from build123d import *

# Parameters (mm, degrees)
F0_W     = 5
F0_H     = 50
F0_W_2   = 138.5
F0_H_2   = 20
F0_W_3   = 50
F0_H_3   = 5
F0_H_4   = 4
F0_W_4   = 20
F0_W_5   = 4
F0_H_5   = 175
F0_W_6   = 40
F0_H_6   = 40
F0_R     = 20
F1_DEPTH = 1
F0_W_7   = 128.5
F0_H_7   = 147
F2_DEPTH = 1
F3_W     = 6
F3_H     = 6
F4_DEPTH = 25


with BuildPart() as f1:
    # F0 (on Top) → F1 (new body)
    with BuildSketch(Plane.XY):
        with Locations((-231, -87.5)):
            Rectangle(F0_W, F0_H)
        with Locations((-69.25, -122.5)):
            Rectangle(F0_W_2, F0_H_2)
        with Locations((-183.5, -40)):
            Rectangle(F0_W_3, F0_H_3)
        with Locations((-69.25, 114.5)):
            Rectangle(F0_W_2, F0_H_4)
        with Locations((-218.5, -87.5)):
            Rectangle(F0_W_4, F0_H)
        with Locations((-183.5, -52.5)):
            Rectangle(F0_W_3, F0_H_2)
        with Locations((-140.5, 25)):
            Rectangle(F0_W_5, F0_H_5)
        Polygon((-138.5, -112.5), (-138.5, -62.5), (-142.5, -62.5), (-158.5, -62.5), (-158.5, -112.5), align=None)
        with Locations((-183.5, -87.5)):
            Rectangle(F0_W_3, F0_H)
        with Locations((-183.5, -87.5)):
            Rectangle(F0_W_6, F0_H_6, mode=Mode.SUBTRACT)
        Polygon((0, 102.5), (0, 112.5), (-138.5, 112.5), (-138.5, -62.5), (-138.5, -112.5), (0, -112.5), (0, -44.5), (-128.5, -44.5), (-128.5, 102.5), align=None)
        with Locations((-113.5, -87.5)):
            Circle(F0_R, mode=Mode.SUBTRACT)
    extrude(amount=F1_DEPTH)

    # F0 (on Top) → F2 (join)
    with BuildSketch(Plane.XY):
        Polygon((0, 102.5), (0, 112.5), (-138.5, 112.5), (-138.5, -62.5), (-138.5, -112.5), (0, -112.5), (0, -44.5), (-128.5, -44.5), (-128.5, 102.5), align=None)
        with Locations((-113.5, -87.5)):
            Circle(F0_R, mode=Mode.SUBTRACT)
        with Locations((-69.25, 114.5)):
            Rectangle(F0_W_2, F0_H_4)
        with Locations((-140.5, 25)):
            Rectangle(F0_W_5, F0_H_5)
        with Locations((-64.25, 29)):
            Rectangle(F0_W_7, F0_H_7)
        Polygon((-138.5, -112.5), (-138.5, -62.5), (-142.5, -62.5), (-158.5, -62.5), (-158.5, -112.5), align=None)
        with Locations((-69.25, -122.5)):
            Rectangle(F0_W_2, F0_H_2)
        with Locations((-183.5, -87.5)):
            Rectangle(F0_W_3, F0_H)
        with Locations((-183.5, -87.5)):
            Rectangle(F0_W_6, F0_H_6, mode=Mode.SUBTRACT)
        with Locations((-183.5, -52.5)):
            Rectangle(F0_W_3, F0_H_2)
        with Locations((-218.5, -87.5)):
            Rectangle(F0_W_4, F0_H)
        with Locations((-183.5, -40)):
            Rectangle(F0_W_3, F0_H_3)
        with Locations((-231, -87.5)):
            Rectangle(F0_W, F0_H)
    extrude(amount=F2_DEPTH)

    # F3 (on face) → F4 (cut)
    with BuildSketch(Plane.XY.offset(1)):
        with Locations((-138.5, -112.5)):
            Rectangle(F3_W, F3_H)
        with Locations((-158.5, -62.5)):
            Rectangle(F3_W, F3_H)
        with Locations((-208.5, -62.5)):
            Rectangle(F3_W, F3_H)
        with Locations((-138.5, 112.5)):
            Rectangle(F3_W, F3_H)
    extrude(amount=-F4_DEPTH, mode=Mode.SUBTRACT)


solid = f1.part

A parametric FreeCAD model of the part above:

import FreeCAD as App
import Part
import Sketcher
from FreeCAD import Vector

doc = App.newDocument("Part")
body = doc.addObject("PartDesign::Body", "Body")

sketch1 = doc.addObject("Sketcher::SketchObject", "Sketch")
body.addObject(sketch1)
sketch1.AttachmentSupport = (doc.XY_Plane, [""])
sketch1.MapMode = "FlatFace"
sketch1.addGeometry([
    Part.LineSegment(Vector(-233.5, -62.5, 0), Vector(-233.5, -112.5, 0)),
    Part.LineSegment(Vector(-233.5, -112.5, 0), Vector(-138.5, -112.5, 0)),
    Part.LineSegment(Vector(-138.5, -112.5, 0), Vector(-138.5, -132.5, 0)),
    Part.LineSegment(Vector(-138.5, -132.5, 0), Vector(0, -132.5, 0)),
    Part.LineSegment(Vector(0, -132.5, 0), Vector(0, -44.5, 0)),
    Part.LineSegment(Vector(0, -44.5, 0), Vector(-128.5, -44.5, 0)),
    Part.LineSegment(Vector(-128.5, -44.5, 0), Vector(-128.5, 102.5, 0)),
    Part.LineSegment(Vector(-128.5, 102.5, 0), Vector(0, 102.5, 0)),
    Part.LineSegment(Vector(0, 102.5, 0), Vector(0, 116.5, 0)),
    Part.LineSegment(Vector(0, 116.5, 0), Vector(-138.5, 116.5, 0)),
    Part.LineSegment(Vector(-138.5, 116.5, 0), Vector(-138.5, 112.5, 0)),
    Part.LineSegment(Vector(-138.5, 112.5, 0), Vector(-142.5, 112.5, 0)),
    Part.LineSegment(Vector(-142.5, 112.5, 0), Vector(-142.5, -62.5, 0)),
    Part.LineSegment(Vector(-142.5, -62.5, 0), Vector(-158.5, -62.5, 0)),
    Part.LineSegment(Vector(-158.5, -62.5, 0), Vector(-158.5, -37.5, 0)),
    Part.LineSegment(Vector(-158.5, -37.5, 0), Vector(-208.5, -37.5, 0)),
    Part.LineSegment(Vector(-208.5, -37.5, 0), Vector(-208.5, -62.5, 0)),
    Part.LineSegment(Vector(-208.5, -62.5, 0), Vector(-233.5, -62.5, 0)),
    Part.LineSegment(Vector(-163.5, -107.5, 0), Vector(-203.5, -107.5, 0)),
    Part.LineSegment(Vector(-203.5, -107.5, 0), Vector(-203.5, -67.5, 0)),
    Part.LineSegment(Vector(-203.5, -67.5, 0), Vector(-163.5, -67.5, 0)),
    Part.LineSegment(Vector(-163.5, -67.5, 0), Vector(-163.5, -107.5, 0)),
    Part.Circle(Vector(-113.5, -87.5, 0), Vector(0, 0, 1), 20),
], False)
sketch1.addConstraint([
    Sketcher.Constraint("Coincident", 0, 2, 1, 1),
    Sketcher.Constraint("Coincident", 1, 2, 2, 1),
    Sketcher.Constraint("Coincident", 2, 2, 3, 1),
    Sketcher.Constraint("Coincident", 3, 2, 4, 1),
    Sketcher.Constraint("Coincident", 4, 2, 5, 1),
    Sketcher.Constraint("Coincident", 5, 2, 6, 1),
    Sketcher.Constraint("Coincident", 6, 2, 7, 1),
    Sketcher.Constraint("Coincident", 7, 2, 8, 1),
    Sketcher.Constraint("Coincident", 8, 2, 9, 1),
    Sketcher.Constraint("Coincident", 9, 2, 10, 1),
    Sketcher.Constraint("Coincident", 10, 2, 11, 1),
    Sketcher.Constraint("Coincident", 11, 2, 12, 1),
    Sketcher.Constraint("Coincident", 12, 2, 13, 1),
    Sketcher.Constraint("Coincident", 13, 2, 14, 1),
    Sketcher.Constraint("Coincident", 14, 2, 15, 1),
    Sketcher.Constraint("Coincident", 15, 2, 16, 1),
    Sketcher.Constraint("Coincident", 16, 2, 17, 1),
    Sketcher.Constraint("Coincident", 17, 2, 0, 1),
    Sketcher.Constraint("Coincident", 18, 2, 19, 1),
    Sketcher.Constraint("Coincident", 19, 2, 20, 1),
    Sketcher.Constraint("Coincident", 20, 2, 21, 1),
    Sketcher.Constraint("Coincident", 21, 2, 18, 1),
    Sketcher.Constraint("Vertical", 0),
    Sketcher.Constraint("Horizontal", 1),
    Sketcher.Constraint("Vertical", 2),
    Sketcher.Constraint("Horizontal", 3),
    Sketcher.Constraint("Vertical", 4),
    Sketcher.Constraint("Horizontal", 5),
    Sketcher.Constraint("Vertical", 6),
    Sketcher.Constraint("Horizontal", 7),
    Sketcher.Constraint("Vertical", 8),
    Sketcher.Constraint("Horizontal", 9),
    Sketcher.Constraint("Vertical", 10),
    Sketcher.Constraint("Horizontal", 11),
    Sketcher.Constraint("Vertical", 12),
    Sketcher.Constraint("Horizontal", 13),
    Sketcher.Constraint("Vertical", 14),
    Sketcher.Constraint("Horizontal", 15),
    Sketcher.Constraint("Vertical", 16),
    Sketcher.Constraint("Horizontal", 17),
    Sketcher.Constraint("Horizontal", 18),
    Sketcher.Constraint("Vertical", 19),
    Sketcher.Constraint("Horizontal", 20),
    Sketcher.Constraint("Vertical", 21),
    Sketcher.Constraint("Symmetric", 1, 2, 10, 2, -1),
    Sketcher.Constraint("PointOnObject", 3, 2, -2),
    Sketcher.Constraint("PointOnObject", 7, 2, -2),
    Sketcher.Constraint("Horizontal", 13, 2, 16, 2),
    Sketcher.Constraint("Equal", 15, 0),
    Sketcher.Constraint("Equal", 11, 10),
    Sketcher.Constraint("Equal", 17, 14),
    Sketcher.Constraint("Equal", 20, 19),
    Sketcher.Constraint("Diameter", 22, 40.0),
    Sketcher.Constraint("DistanceX", 1, 1, 1, 2, 95.0),
    Sketcher.Constraint("DistanceX", 11, 2, 11, 1, 4.0),
    Sketcher.Constraint("DistanceX", 13, 2, 13, 1, 16.0),
    Sketcher.Constraint("DistanceX", 15, 2, 15, 1, 50.0),
    Sketcher.Constraint("DistanceX", 18, 2, 18, 1, 40.0),
    Sketcher.Constraint("DistanceY", 2, 2, 2, 1, 20.0),
    Sketcher.Constraint("DistanceY", 4, 1, 4, 2, 88.0),
    Sketcher.Constraint("DistanceY", 6, 1, 6, 2, 147.0),
    Sketcher.Constraint("DistanceY", 8, 1, 8, 2, 14.0),
    Sketcher.Constraint("DistanceX", 3, 1, 3, 2, 138.5),
    Sketcher.Constraint("DistanceX", 5, 2, 5, 1, 128.5),
    Sketcher.Constraint("DistanceX", 0, 2, 22, 3, 120.0),
    Sketcher.Constraint("DistanceY", 0, 2, 22, 3, 25.0),
    Sketcher.Constraint("DistanceX", 0, 2, 18, 2, 30.0),
    Sketcher.Constraint("DistanceY", 0, 2, 18, 2, 5.0),
])
pad1 = doc.addObject("PartDesign::Pad", "Pad")
body.addObject(pad1)
pad1.Profile = sketch1
pad1.Length = 1

sketch2 = doc.addObject("Sketcher::SketchObject", "Sketch001")
body.addObject(sketch2)
sketch2.AttachmentSupport = (doc.XY_Plane, [""])
sketch2.MapMode = "FlatFace"
sketch2.addGeometry([
    Part.LineSegment(Vector(0, 116.5, 0), Vector(-138.5, 116.5, 0)),
    Part.LineSegment(Vector(-138.5, 116.5, 0), Vector(-138.5, 112.5, 0)),
    Part.LineSegment(Vector(-138.5, 112.5, 0), Vector(-142.5, 112.5, 0)),
    Part.LineSegment(Vector(-142.5, 112.5, 0), Vector(-142.5, -62.5, 0)),
    Part.LineSegment(Vector(-142.5, -62.5, 0), Vector(-158.5, -62.5, 0)),
    Part.LineSegment(Vector(-158.5, -62.5, 0), Vector(-158.5, -37.5, 0)),
    Part.LineSegment(Vector(-158.5, -37.5, 0), Vector(-208.5, -37.5, 0)),
    Part.LineSegment(Vector(-208.5, -37.5, 0), Vector(-208.5, -62.5, 0)),
    Part.LineSegment(Vector(-208.5, -62.5, 0), Vector(-233.5, -62.5, 0)),
    Part.LineSegment(Vector(-233.5, -62.5, 0), Vector(-233.5, -112.5, 0)),
    Part.LineSegment(Vector(-233.5, -112.5, 0), Vector(-138.5, -112.5, 0)),
    Part.LineSegment(Vector(-138.5, -112.5, 0), Vector(-138.5, -132.5, 0)),
    Part.LineSegment(Vector(-138.5, -132.5, 0), Vector(0, -132.5, 0)),
    Part.LineSegment(Vector(0, -132.5, 0), Vector(0, 116.5, 0)),
    Part.LineSegment(Vector(-163.5, -107.5, 0), Vector(-203.5, -107.5, 0)),
    Part.LineSegment(Vector(-203.5, -107.5, 0), Vector(-203.5, -67.5, 0)),
    Part.LineSegment(Vector(-203.5, -67.5, 0), Vector(-163.5, -67.5, 0)),
    Part.LineSegment(Vector(-163.5, -67.5, 0), Vector(-163.5, -107.5, 0)),
    Part.Circle(Vector(-113.5, -87.5, 0), Vector(0, 0, 1), 20),
], False)
sketch2.addConstraint([
    Sketcher.Constraint("Coincident", 0, 2, 1, 1),
    Sketcher.Constraint("Coincident", 1, 2, 2, 1),
    Sketcher.Constraint("Coincident", 2, 2, 3, 1),
    Sketcher.Constraint("Coincident", 3, 2, 4, 1),
    Sketcher.Constraint("Coincident", 4, 2, 5, 1),
    Sketcher.Constraint("Coincident", 5, 2, 6, 1),
    Sketcher.Constraint("Coincident", 6, 2, 7, 1),
    Sketcher.Constraint("Coincident", 7, 2, 8, 1),
    Sketcher.Constraint("Coincident", 8, 2, 9, 1),
    Sketcher.Constraint("Coincident", 9, 2, 10, 1),
    Sketcher.Constraint("Coincident", 10, 2, 11, 1),
    Sketcher.Constraint("Coincident", 11, 2, 12, 1),
    Sketcher.Constraint("Coincident", 12, 2, 13, 1),
    Sketcher.Constraint("Coincident", 13, 2, 0, 1),
    Sketcher.Constraint("Coincident", 14, 2, 15, 1),
    Sketcher.Constraint("Coincident", 15, 2, 16, 1),
    Sketcher.Constraint("Coincident", 16, 2, 17, 1),
    Sketcher.Constraint("Coincident", 17, 2, 14, 1),
    Sketcher.Constraint("Horizontal", 0),
    Sketcher.Constraint("Vertical", 1),
    Sketcher.Constraint("Horizontal", 2),
    Sketcher.Constraint("Vertical", 3),
    Sketcher.Constraint("Horizontal", 4),
    Sketcher.Constraint("Vertical", 5),
    Sketcher.Constraint("Horizontal", 6),
    Sketcher.Constraint("Vertical", 7),
    Sketcher.Constraint("Horizontal", 8),
    Sketcher.Constraint("Vertical", 9),
    Sketcher.Constraint("Horizontal", 10),
    Sketcher.Constraint("Vertical", 11),
    Sketcher.Constraint("Horizontal", 12),
    Sketcher.Constraint("Vertical", 13),
    Sketcher.Constraint("Horizontal", 14),
    Sketcher.Constraint("Vertical", 15),
    Sketcher.Constraint("Horizontal", 16),
    Sketcher.Constraint("Vertical", 17),
    Sketcher.Constraint("Symmetric", 1, 2, 10, 2, -1),
    Sketcher.Constraint("PointOnObject", 12, 2, -2),
    Sketcher.Constraint("Horizontal", 4, 2, 7, 2),
    Sketcher.Constraint("Equal", 2, 1),
    Sketcher.Constraint("Equal", 8, 5),
    Sketcher.Constraint("Equal", 6, 9),
    Sketcher.Constraint("Equal", 16, 15),
    Sketcher.Constraint("Diameter", 18, 40.0),
    Sketcher.Constraint("DistanceX", 2, 2, 2, 1, 4.0),
    Sketcher.Constraint("DistanceX", 4, 2, 4, 1, 16.0),
    Sketcher.Constraint("DistanceX", 6, 2, 6, 1, 50.0),
    Sketcher.Constraint("DistanceX", 8, 2, 8, 1, 25.0),
    Sketcher.Constraint("DistanceX", 14, 2, 14, 1, 40.0),
    Sketcher.Constraint("DistanceY", 3, 2, 3, 1, 175.0),
    Sketcher.Constraint("DistanceY", 11, 2, 11, 1, 20.0),
    Sketcher.Constraint("DistanceX", 0, 2, 0, 1, 138.5),
    Sketcher.Constraint("DistanceX", 0, 2, 18, 3, 25.0),
    Sketcher.Constraint("DistanceY", 18, 3, 0, 2, 204.0),
    Sketcher.Constraint("DistanceX", 9, 2, 14, 2, 30.0),
    Sketcher.Constraint("DistanceY", 9, 2, 14, 2, 5.0),
])
pad2 = doc.addObject("PartDesign::Pad", "Pad001")
body.addObject(pad2)
pad2.Profile = sketch2
pad2.Length = 1

sketch3 = doc.addObject("Sketcher::SketchObject", "Sketch002")
body.addObject(sketch3)
sketch3.AttachmentSupport = (doc.XY_Plane, [""])
sketch3.MapMode = "FlatFace"
sketch3.AttachmentOffset = App.Placement(Vector(0, 0, 1), App.Rotation())
sketch3.addGeometry([
    Part.LineSegment(Vector(-142, -110, 0), Vector(-142, -116, 0)),
    Part.LineSegment(Vector(-142, -116, 0), Vector(-136, -116, 0)),
    Part.LineSegment(Vector(-136, -116, 0), Vector(-136, -110, 0)),
    Part.LineSegment(Vector(-136, -110, 0), Vector(-142, -110, 0)),
    Part.LineSegment(Vector(-162, -60, 0), Vector(-162, -66, 0)),
    Part.LineSegment(Vector(-162, -66, 0), Vector(-156, -66, 0)),
    Part.LineSegment(Vector(-156, -66, 0), Vector(-156, -60, 0)),
    Part.LineSegment(Vector(-156, -60, 0), Vector(-162, -60, 0)),
    Part.LineSegment(Vector(-212, -60, 0), Vector(-212, -66, 0)),
    Part.LineSegment(Vector(-212, -66, 0), Vector(-206, -66, 0)),
    Part.LineSegment(Vector(-206, -66, 0), Vector(-206, -60, 0)),
    Part.LineSegment(Vector(-206, -60, 0), Vector(-212, -60, 0)),
    Part.LineSegment(Vector(-142, 116, 0), Vector(-142, 110, 0)),
    Part.LineSegment(Vector(-142, 110, 0), Vector(-136, 110, 0)),
    Part.LineSegment(Vector(-136, 110, 0), Vector(-136, 116, 0)),
    Part.LineSegment(Vector(-136, 116, 0), Vector(-142, 116, 0)),
], False)
sketch3.addConstraint([
    Sketcher.Constraint("Coincident", 0, 2, 1, 1),
    Sketcher.Constraint("Coincident", 1, 2, 2, 1),
    Sketcher.Constraint("Coincident", 2, 2, 3, 1),
    Sketcher.Constraint("Coincident", 3, 2, 0, 1),
    Sketcher.Constraint("Coincident", 4, 2, 5, 1),
    Sketcher.Constraint("Coincident", 5, 2, 6, 1),
    Sketcher.Constraint("Coincident", 6, 2, 7, 1),
    Sketcher.Constraint("Coincident", 7, 2, 4, 1),
    Sketcher.Constraint("Coincident", 8, 2, 9, 1),
    Sketcher.Constraint("Coincident", 9, 2, 10, 1),
    Sketcher.Constraint("Coincident", 10, 2, 11, 1),
    Sketcher.Constraint("Coincident", 11, 2, 8, 1),
    Sketcher.Constraint("Coincident", 12, 2, 13, 1),
    Sketcher.Constraint("Coincident", 13, 2, 14, 1),
    Sketcher.Constraint("Coincident", 14, 2, 15, 1),
    Sketcher.Constraint("Coincident", 15, 2, 12, 1),
    Sketcher.Constraint("Vertical", 0),
    Sketcher.Constraint("Horizontal", 1),
    Sketcher.Constraint("Vertical", 2),
    Sketcher.Constraint("Horizontal", 3),
    Sketcher.Constraint("Vertical", 4),
    Sketcher.Constraint("Horizontal", 5),
    Sketcher.Constraint("Vertical", 6),
    Sketcher.Constraint("Horizontal", 7),
    Sketcher.Constraint("Vertical", 8),
    Sketcher.Constraint("Horizontal", 9),
    Sketcher.Constraint("Vertical", 10),
    Sketcher.Constraint("Horizontal", 11),
    Sketcher.Constraint("Vertical", 12),
    Sketcher.Constraint("Horizontal", 13),
    Sketcher.Constraint("Vertical", 14),
    Sketcher.Constraint("Horizontal", 15),
    Sketcher.Constraint("Symmetric", 3, 2, 12, 2, -1),
    Sketcher.Constraint("Symmetric", 1, 2, 14, 2, -1),
    Sketcher.Constraint("Horizontal", 5, 2, 8, 2),
    Sketcher.Constraint("Horizontal", 7, 2, 10, 2),
    Sketcher.Constraint("Equal", 3, 5),
    Sketcher.Constraint("Equal", 7, 9),
    Sketcher.Constraint("Equal", 15, 0),
    Sketcher.Constraint("Equal", 2, 4),
    Sketcher.Constraint("DistanceX", 1, 1, 1, 2, 6.0),
    Sketcher.Constraint("DistanceX", 4, 2, 3, 2, 20.0),
    Sketcher.Constraint("DistanceY", 3, 2, 4, 2, 44.0),
    Sketcher.Constraint("DistanceX", 8, 2, 4, 2, 50.0),
    Sketcher.Constraint("DistanceY", 6, 2, 12, 2, 169.0),
    Sketcher.Constraint("DistanceX", 0, 2, -1, 1, 141.5),
])
pocket1 = doc.addObject("PartDesign::Pocket", "Pocket")
body.addObject(pocket1)
pocket1.Profile = sketch3
pocket1.Length = 25

doc.recompute()
